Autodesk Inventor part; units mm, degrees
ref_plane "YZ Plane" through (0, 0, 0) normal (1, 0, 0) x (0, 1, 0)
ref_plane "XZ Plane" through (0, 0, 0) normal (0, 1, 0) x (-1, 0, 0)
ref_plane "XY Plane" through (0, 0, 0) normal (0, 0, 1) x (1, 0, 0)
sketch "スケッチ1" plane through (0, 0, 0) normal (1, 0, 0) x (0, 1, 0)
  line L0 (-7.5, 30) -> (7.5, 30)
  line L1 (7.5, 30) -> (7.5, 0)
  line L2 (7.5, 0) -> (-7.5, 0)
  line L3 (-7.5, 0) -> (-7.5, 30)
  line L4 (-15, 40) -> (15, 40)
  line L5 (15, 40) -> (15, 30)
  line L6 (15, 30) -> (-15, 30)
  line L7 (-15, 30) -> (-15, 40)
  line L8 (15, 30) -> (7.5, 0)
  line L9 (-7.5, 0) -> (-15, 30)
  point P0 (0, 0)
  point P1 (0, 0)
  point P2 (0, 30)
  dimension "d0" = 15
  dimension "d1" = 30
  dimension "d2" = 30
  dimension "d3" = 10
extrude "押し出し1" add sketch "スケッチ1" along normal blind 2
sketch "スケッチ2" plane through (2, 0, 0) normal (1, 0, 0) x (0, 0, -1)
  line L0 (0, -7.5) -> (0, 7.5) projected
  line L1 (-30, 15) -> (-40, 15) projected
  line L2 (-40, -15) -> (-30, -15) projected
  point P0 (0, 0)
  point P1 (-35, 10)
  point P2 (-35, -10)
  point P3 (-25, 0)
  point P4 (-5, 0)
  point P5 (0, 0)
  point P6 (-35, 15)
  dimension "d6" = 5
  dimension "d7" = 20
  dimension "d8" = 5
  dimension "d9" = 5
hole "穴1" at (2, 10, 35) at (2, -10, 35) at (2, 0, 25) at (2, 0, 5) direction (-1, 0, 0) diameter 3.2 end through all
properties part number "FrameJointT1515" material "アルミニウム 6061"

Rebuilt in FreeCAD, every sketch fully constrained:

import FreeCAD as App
import Part
import Sketcher
Q = App.Units.Quantity


def add_polygon(sketch, points):
    """Adds a closed chain of lines whose ends are joined by coincident constraints."""
    first, n = sketch.GeometryCount, len(points)
    for a, b in zip(points, points[1:] + points[:1]):
        sketch.addGeometry(Part.LineSegment(App.Vector(*a, 0), App.Vector(*b, 0)), False)
    for i in range(n):
        sketch.addConstraint(Sketcher.Constraint("Coincident", first + i, 2, first + (i + 1) % n, 1))

doc = App.newDocument("Part")
body = doc.addObject("PartDesign::Body", "Body")

# Sketch on YZ plane
sketch1 = body.newObject("Sketcher::SketchObject", "Sketch")
sketch1.AttachmentSupport = (doc.getObject("YZ_Plane"), [""])
sketch1.MapMode = "FlatFace"
add_polygon(sketch1, [(-15, 40), (-15, 30), (-8, 0), (8, 0), (15, 30), (15, 40)])  # lines 0-5
sketch1.addConstraint(Sketcher.Constraint("Vertical", 0))
sketch1.addConstraint(Sketcher.Constraint("Horizontal", 2))
sketch1.addConstraint(Sketcher.Constraint("Vertical", 4))
sketch1.addConstraint(Sketcher.Constraint("Horizontal", 5))
sketch1.addConstraint(Sketcher.Constraint("Symmetric", 1, 2, 2, 2, -1, 1))
sketch1.addConstraint(Sketcher.Constraint("Symmetric", 0, 2, 3, 2, -2))
sketch1.addConstraint(Sketcher.Constraint("DistanceX", 2, 1, 2, 2, Q("15 mm")))
sketch1.addConstraint(Sketcher.Constraint("DistanceX", 5, 2, 5, 1, Q("30 mm")))
sketch1.addConstraint(Sketcher.Constraint("DistanceY", 0, 2, 0, 1, Q("10 mm")))
sketch1.addConstraint(Sketcher.Constraint("DistanceY", -1, 1, 0, 2, Q("30 mm")))
pad1 = body.newObject("PartDesign::Pad", "Pad")
pad1.Profile = sketch1
pad1.Length = 2

# Sketch on YZ plane
sketch2 = body.newObject("Sketcher::SketchObject", "Sketch001")
sketch2.AttachmentSupport = (doc.getObject("YZ_Plane"), [""])
sketch2.MapMode = "FlatFace"
sketch2.AttachmentOffset = App.Placement(App.Vector(0, 0, 2), App.Rotation())
sketch2.addGeometry(Part.Circle(App.Vector(10, 35, 0), App.Vector(0, 0, 1), 1.6), False)
sketch2.addGeometry(Part.Circle(App.Vector(-10, 35, 0), App.Vector(0, 0, 1), 1.6), False)
sketch2.addGeometry(Part.Circle(App.Vector(0, 25, 0), App.Vector(0, 0, 1), 1.6), False)
sketch2.addGeometry(Part.Circle(App.Vector(0, 5, 0), App.Vector(0, 0, 1), 1.6), False)
sketch2.addConstraint(Sketcher.Constraint("Equal", 0, 1))
sketch2.addConstraint(Sketcher.Constraint("Equal", 1, 2))
sketch2.addConstraint(Sketcher.Constraint("Equal", 2, 3))
sketch2.addConstraint(Sketcher.Constraint("Symmetric", 0, 3, 1, 3, -2))
sketch2.addConstraint(Sketcher.Constraint("PointOnObject", 2, 3, -2))
sketch2.addConstraint(Sketcher.Constraint("PointOnObject", 3, 3, -2))
sketch2.addConstraint(Sketcher.Constraint("Diameter", 0, Q("3.2 mm")))
sketch2.addConstraint(Sketcher.Constraint("DistanceX", -1, 1, 0, 3, Q("10 mm")))
sketch2.addConstraint(Sketcher.Constraint("DistanceY", -1, 1, 0, 3, Q("35 mm")))
sketch2.addConstraint(Sketcher.Constraint("DistanceY", -1, 1, 2, 3, Q("25 mm")))
sketch2.addConstraint(Sketcher.Constraint("DistanceY", -1, 1, 3, 3, Q("5 mm")))
doc.recompute()
hole = body.newObject("PartDesign::Hole", "Hole")
hole.Profile = sketch2
hole.ThreadType = "None"
hole.Diameter = 3.2
hole.DepthType = "ThroughAll"

doc.recompute()
